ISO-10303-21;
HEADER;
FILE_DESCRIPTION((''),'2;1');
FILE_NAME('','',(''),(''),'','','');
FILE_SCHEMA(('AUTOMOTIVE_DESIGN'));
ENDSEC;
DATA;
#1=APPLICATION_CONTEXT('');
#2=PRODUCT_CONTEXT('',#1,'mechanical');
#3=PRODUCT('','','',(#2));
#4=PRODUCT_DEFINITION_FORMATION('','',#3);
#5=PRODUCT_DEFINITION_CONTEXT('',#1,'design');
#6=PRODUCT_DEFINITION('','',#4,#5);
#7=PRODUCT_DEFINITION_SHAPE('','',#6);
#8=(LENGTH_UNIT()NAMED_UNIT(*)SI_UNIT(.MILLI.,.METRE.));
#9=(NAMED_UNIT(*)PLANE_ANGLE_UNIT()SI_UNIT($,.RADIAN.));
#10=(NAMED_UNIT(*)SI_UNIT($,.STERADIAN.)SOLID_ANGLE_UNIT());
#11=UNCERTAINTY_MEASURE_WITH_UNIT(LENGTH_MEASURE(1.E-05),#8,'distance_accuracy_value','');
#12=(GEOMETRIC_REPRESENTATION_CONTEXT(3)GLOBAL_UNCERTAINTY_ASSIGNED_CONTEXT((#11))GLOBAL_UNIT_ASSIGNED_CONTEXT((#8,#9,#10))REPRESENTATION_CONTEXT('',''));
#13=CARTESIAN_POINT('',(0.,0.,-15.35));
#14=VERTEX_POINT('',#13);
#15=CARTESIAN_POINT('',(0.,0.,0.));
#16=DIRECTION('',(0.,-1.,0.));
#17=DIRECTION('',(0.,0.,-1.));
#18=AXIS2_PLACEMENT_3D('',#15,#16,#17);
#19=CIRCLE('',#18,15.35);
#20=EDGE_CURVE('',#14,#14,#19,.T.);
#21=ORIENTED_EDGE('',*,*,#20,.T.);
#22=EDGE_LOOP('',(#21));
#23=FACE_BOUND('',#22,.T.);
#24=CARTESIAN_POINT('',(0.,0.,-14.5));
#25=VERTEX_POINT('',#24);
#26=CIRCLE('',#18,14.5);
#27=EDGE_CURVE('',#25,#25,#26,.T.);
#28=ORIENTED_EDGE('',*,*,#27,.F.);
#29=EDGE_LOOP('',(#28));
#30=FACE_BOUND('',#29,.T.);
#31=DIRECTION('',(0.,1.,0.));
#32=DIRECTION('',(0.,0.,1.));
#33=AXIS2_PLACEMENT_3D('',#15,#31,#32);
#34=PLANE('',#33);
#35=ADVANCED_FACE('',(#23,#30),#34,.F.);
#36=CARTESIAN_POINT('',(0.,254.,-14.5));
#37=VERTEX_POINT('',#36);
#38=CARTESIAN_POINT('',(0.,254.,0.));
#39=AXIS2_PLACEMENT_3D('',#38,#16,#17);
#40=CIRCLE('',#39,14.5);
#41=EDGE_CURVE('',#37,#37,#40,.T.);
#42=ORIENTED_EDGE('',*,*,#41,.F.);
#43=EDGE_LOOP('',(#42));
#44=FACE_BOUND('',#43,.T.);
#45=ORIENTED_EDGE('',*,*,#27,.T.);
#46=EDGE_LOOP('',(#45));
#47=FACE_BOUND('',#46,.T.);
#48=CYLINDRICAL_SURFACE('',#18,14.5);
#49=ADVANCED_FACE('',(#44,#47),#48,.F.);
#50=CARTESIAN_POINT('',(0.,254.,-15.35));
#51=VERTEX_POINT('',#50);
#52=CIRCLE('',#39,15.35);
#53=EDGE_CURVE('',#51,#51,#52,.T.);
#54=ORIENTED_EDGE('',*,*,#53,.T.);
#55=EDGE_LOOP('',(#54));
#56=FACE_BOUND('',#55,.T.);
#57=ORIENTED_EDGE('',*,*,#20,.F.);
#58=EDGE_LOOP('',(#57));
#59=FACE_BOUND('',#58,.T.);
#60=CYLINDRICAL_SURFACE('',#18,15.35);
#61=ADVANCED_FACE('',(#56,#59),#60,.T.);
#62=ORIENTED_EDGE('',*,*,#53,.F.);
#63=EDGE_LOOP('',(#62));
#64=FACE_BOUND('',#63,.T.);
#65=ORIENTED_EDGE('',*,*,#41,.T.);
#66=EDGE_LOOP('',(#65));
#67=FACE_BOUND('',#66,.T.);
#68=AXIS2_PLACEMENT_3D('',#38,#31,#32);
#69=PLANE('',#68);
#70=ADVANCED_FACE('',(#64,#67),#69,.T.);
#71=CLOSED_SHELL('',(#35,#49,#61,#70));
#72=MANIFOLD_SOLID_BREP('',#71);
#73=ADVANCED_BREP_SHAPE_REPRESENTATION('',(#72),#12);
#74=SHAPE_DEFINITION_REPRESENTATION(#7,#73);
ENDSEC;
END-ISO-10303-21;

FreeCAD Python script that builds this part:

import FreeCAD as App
import Part
import Sketcher
from FreeCAD import Vector
Q = App.Units.Quantity

doc = App.newDocument("Part")
body = doc.addObject("PartDesign::Body", "Body")

# Sketch on XY plane
sketch1 = body.newObject("Sketcher::SketchObject", "Sketch")
sketch1.AttachmentSupport = (doc.getObject("XY_Plane"), [""])
sketch1.MapMode = "FlatFace"
sketch1.addGeometry(Part.LineSegment(Vector(-15.3, 254, 0), Vector(-15.3, 0, 0)), False)
sketch1.addGeometry(Part.LineSegment(Vector(-15.3, 0, 0), Vector(-14.5, 0, 0)), False)
sketch1.addGeometry(Part.LineSegment(Vector(-14.5, 0, 0), Vector(-14.5, 254, 0)), False)
sketch1.addGeometry(Part.LineSegment(Vector(-14.5, 254, 0), Vector(-15.3, 254, 0)), False)
sketch1.addConstraint(Sketcher.Constraint("Coincident", 0, 2, 1, 1))
sketch1.addConstraint(Sketcher.Constraint("Coincident", 1, 2, 2, 1))
sketch1.addConstraint(Sketcher.Constraint("Coincident", 2, 2, 3, 1))
sketch1.addConstraint(Sketcher.Constraint("Coincident", 3, 2, 0, 1))
sketch1.addConstraint(Sketcher.Constraint("Vertical", 0))
sketch1.addConstraint(Sketcher.Constraint("Horizontal", 1))
sketch1.addConstraint(Sketcher.Constraint("Vertical", 2))
sketch1.addConstraint(Sketcher.Constraint("Horizontal", 3))
sketch1.addConstraint(Sketcher.Constraint("PointOnObject", 0, 2, -1))
sketch1.addConstraint(Sketcher.Constraint("DistanceY", 0, 2, 0, 1, Q("10 in")))
sketch1.addConstraint(Sketcher.Constraint("DistanceX", 1, 1, 1, 2, Q("0.85 mm")))
sketch1.addConstraint(Sketcher.Constraint("DistanceX", 0, 2, -1, 1, Q("15.35 mm")))
revolution = body.newObject("PartDesign::Revolution", "Revolution")
revolution.Profile = sketch1
revolution.ReferenceAxis = (sketch1, ["V_Axis"])
revolution.Angle = 360

doc.recompute()
